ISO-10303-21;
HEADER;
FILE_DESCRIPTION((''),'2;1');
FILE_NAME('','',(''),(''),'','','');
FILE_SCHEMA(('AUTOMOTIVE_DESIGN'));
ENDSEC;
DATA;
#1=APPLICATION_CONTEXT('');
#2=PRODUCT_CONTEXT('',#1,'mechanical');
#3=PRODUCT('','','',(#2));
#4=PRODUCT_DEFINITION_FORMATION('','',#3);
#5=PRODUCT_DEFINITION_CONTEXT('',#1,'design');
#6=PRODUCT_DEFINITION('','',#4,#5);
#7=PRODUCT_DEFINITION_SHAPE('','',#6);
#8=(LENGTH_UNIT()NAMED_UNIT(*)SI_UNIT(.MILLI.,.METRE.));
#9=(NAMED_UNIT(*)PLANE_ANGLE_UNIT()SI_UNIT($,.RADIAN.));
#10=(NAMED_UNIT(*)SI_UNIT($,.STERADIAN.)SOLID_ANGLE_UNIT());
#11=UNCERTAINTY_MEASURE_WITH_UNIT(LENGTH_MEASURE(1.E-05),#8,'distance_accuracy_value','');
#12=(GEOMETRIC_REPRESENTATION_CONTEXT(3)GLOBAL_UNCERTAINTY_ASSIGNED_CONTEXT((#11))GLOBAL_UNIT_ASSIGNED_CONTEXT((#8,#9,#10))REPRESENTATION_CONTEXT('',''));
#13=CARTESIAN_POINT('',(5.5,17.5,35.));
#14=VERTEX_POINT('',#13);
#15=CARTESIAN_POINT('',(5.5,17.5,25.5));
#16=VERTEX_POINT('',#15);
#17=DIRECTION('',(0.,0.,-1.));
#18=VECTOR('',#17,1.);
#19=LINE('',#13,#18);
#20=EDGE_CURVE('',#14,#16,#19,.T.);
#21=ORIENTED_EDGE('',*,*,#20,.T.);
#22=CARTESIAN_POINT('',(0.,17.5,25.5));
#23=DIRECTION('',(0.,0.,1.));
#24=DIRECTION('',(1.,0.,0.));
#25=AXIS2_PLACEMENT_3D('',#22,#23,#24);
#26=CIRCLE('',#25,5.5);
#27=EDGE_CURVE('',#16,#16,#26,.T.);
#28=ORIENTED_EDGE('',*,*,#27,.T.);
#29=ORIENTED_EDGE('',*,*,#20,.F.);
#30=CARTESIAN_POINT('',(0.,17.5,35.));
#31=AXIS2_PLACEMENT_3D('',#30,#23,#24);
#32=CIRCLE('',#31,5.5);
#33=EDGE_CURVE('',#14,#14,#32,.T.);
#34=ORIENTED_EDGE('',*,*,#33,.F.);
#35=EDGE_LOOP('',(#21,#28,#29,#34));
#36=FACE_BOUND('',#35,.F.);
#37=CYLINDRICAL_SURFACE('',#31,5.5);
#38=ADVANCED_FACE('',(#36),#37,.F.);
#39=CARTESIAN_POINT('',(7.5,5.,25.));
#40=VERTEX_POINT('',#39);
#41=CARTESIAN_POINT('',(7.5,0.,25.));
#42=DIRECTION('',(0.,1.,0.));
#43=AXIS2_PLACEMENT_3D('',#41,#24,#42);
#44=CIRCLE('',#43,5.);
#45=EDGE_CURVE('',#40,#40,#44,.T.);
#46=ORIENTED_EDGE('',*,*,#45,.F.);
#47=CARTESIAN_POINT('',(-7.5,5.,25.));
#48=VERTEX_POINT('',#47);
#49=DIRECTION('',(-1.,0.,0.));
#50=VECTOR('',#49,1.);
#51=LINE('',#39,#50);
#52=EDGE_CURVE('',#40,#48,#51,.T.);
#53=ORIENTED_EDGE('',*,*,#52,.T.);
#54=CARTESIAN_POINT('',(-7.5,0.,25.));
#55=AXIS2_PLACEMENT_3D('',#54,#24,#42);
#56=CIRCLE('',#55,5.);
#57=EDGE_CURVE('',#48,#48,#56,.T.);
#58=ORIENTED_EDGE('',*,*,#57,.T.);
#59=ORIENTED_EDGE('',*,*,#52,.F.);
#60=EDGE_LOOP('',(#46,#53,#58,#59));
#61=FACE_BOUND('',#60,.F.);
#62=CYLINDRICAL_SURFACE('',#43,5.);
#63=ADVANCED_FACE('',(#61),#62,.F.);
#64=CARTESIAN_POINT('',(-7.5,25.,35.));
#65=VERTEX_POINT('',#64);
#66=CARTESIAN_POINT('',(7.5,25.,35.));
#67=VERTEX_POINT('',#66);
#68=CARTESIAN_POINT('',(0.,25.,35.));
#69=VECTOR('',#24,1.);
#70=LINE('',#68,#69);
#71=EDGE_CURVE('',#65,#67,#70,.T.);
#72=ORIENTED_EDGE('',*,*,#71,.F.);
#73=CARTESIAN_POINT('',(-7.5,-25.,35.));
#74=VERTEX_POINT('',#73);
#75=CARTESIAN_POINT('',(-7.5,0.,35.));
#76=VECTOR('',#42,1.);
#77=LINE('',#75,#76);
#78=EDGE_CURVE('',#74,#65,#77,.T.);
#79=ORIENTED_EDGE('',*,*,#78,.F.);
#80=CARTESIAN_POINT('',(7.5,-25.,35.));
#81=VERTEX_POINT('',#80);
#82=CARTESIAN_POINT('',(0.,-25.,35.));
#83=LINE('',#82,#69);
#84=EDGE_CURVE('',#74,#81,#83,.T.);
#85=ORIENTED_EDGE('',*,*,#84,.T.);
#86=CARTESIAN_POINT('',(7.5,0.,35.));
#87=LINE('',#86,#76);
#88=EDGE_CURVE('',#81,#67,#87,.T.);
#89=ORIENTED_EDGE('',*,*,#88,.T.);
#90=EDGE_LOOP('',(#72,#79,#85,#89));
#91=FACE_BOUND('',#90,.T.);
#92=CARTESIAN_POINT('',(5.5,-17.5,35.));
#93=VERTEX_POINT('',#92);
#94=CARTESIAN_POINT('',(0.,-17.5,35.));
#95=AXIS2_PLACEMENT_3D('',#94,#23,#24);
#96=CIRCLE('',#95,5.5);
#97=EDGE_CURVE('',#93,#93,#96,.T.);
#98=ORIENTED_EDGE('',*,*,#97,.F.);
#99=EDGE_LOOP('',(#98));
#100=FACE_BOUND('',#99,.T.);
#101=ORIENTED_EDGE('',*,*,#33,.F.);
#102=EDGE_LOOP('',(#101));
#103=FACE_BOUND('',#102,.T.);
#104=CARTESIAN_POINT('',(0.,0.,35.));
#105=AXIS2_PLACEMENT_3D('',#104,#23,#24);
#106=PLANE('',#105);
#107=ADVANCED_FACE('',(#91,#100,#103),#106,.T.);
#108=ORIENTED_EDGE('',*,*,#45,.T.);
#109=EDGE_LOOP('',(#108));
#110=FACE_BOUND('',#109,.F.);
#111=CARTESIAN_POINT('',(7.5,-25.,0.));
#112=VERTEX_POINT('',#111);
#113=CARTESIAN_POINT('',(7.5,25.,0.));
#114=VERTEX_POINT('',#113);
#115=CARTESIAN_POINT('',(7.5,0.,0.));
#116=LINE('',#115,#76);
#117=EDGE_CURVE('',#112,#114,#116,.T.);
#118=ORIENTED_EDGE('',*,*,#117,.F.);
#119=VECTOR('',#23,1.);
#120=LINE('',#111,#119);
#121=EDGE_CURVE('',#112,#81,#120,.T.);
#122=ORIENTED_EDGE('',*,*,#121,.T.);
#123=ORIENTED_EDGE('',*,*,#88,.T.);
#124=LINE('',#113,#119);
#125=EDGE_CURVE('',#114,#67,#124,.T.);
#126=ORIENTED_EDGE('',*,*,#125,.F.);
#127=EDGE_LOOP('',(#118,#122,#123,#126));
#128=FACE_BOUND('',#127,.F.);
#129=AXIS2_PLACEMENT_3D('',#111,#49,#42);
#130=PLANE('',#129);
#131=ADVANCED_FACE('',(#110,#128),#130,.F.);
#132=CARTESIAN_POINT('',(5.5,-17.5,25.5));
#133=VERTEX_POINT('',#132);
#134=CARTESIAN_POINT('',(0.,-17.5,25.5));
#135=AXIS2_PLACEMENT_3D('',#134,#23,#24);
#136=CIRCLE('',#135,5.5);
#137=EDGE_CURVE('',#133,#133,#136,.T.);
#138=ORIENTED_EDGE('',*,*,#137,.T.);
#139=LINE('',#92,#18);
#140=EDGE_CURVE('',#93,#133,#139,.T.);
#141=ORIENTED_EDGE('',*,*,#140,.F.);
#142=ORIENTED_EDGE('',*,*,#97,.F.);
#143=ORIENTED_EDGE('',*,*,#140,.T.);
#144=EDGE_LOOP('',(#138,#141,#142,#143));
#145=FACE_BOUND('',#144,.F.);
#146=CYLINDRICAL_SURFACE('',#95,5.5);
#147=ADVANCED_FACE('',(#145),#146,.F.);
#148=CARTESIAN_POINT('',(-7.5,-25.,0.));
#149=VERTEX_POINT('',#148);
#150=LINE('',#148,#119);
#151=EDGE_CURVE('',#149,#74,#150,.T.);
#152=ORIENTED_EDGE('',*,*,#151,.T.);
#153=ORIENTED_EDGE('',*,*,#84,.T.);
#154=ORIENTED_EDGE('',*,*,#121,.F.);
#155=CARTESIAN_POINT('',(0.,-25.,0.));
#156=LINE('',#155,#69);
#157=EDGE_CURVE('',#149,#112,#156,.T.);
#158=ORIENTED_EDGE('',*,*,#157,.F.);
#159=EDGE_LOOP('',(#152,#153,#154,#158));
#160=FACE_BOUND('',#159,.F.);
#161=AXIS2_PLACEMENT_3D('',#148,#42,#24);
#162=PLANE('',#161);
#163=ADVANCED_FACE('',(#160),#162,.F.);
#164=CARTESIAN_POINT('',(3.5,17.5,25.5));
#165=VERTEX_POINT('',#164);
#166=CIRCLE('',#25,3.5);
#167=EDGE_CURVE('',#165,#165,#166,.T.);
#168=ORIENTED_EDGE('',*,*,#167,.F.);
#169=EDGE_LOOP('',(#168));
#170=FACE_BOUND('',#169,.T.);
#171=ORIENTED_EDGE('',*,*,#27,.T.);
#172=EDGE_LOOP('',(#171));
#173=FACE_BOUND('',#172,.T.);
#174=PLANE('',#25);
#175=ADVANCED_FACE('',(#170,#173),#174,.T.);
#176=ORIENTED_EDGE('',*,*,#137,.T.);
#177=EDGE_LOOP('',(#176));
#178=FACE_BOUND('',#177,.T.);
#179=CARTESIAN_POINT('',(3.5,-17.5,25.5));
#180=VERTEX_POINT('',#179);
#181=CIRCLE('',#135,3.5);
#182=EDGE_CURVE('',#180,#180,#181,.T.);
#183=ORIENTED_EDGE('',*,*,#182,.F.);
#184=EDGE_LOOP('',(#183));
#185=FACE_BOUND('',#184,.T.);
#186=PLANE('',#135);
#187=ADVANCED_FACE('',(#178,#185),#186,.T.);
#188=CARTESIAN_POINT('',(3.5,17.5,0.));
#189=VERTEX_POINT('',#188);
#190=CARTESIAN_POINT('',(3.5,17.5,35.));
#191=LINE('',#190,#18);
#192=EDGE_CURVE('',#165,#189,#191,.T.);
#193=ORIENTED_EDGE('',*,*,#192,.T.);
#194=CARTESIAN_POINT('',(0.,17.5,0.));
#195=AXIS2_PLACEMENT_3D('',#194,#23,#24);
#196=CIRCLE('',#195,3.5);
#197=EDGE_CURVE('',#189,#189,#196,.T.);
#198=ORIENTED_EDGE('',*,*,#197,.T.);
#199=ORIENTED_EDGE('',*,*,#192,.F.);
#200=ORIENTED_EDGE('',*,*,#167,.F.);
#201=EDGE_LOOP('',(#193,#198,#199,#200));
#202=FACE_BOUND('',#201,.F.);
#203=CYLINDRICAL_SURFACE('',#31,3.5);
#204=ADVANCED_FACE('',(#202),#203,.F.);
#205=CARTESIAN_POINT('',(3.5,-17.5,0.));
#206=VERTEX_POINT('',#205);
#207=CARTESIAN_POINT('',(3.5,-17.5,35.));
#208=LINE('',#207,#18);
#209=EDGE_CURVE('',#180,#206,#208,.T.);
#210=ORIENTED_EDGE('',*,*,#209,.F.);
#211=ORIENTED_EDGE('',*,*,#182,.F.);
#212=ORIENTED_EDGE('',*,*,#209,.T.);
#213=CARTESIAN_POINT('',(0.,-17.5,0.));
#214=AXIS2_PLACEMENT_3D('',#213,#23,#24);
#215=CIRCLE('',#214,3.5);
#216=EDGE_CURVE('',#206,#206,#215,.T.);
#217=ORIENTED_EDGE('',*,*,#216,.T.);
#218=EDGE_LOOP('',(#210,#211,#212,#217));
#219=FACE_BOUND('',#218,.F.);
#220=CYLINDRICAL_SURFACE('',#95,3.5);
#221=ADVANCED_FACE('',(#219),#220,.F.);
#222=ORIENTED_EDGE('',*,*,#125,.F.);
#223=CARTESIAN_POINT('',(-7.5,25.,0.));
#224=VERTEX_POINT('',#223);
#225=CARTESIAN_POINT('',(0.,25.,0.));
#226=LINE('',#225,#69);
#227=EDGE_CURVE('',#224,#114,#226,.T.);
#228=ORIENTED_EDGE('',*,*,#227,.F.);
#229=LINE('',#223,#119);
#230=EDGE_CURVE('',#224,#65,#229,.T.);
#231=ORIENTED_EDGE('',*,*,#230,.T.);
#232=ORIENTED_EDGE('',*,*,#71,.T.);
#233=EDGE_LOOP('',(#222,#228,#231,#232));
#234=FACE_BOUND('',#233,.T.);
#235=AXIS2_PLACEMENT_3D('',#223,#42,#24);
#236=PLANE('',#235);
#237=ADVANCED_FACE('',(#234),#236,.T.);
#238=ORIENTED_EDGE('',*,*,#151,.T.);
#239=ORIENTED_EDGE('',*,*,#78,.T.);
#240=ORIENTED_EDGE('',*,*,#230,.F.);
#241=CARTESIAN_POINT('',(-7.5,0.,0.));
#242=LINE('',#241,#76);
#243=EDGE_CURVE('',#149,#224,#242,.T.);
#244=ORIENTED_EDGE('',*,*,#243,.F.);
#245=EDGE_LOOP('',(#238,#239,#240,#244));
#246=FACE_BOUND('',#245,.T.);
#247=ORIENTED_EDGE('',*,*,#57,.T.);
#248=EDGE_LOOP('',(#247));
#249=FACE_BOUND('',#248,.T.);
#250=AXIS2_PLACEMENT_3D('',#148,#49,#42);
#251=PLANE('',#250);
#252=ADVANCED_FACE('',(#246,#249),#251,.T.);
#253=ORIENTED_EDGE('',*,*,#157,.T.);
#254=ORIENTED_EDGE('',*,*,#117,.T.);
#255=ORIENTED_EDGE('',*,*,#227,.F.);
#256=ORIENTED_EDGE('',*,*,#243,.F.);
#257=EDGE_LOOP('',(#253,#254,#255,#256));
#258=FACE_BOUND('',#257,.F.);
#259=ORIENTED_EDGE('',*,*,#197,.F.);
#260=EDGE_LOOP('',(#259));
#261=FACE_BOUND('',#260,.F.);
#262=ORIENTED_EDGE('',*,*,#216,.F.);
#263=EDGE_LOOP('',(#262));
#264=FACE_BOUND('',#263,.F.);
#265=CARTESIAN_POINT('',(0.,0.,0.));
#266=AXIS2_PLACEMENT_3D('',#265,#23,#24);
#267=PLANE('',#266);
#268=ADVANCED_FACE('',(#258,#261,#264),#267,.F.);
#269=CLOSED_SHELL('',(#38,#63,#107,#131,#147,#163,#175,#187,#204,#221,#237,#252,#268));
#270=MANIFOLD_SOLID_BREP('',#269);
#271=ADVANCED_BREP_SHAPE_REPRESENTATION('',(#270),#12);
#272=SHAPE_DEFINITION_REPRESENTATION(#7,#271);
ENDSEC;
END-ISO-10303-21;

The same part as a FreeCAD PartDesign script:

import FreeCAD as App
import Part
import Sketcher
from FreeCAD import Vector
Q = App.Units.Quantity

doc = App.newDocument("Part")
body = doc.addObject("PartDesign::Body", "Body")

# Sketch on XY plane
sketch1 = body.newObject("Sketcher::SketchObject", "Sketch")
sketch1.AttachmentSupport = (doc.getObject("XY_Plane"), [""])
sketch1.MapMode = "FlatFace"
sketch1.addGeometry([
    Part.LineSegment(Vector(-7.5, 25, 0), Vector(-7.5, -25, 0)),
    Part.LineSegment(Vector(-7.5, -25, 0), Vector(7.5, -25, 0)),
    Part.LineSegment(Vector(7.5, -25, 0), Vector(7.5, 25, 0)),
    Part.LineSegment(Vector(7.5, 25, 0), Vector(-7.5, 25, 0)),
], False)
sketch1.addConstraint([
    Sketcher.Constraint("Coincident", 0, 2, 1, 1),
    Sketcher.Constraint("Coincident", 1, 2, 2, 1),
    Sketcher.Constraint("Coincident", 2, 2, 3, 1),
    Sketcher.Constraint("Coincident", 3, 2, 0, 1),
    Sketcher.Constraint("Vertical", 0),
    Sketcher.Constraint("Horizontal", 1),
    Sketcher.Constraint("Vertical", 2),
    Sketcher.Constraint("Horizontal", 3),
    Sketcher.Constraint("Symmetric", 0, 2, 2, 2, -1, 1),
    Sketcher.Constraint("DistanceX", 1, 1, 1, 2, Q("15 mm")),
    Sketcher.Constraint("DistanceY", 0, 2, 0, 1, Q("50 mm")),
])
pad1 = body.newObject("PartDesign::Pad", "Pad")
pad1.Profile = sketch1
pad1.Length = 35

# Sketch on YZ plane
sketch2 = body.newObject("Sketcher::SketchObject", "Sketch001")
sketch2.AttachmentSupport = (doc.getObject("YZ_Plane"), [""])
sketch2.MapMode = "FlatFace"
sketch2.AttachmentOffset = App.Placement(Vector(0, 0, 7.5), App.Rotation())
sketch2.addGeometry(Part.Circle(Vector(0, 25, 0), Vector(0, 0, 1), 5), False)
sketch2.addConstraint([
    Sketcher.Constraint("PointOnObject", 0, 3, -2),
    Sketcher.Constraint("Diameter", 0, Q("10 mm")),
    Sketcher.Constraint("DistanceY", -1, 1, 0, 3, Q("25 mm")),
])
pocket1 = body.newObject("PartDesign::Pocket", "Pocket")
pocket1.Profile = sketch2
pocket1.Type = "ThroughAll"

# Sketch on XY plane
sketch3 = body.newObject("Sketcher::SketchObject", "Sketch002")
sketch3.AttachmentSupport = (doc.getObject("XY_Plane"), [""])
sketch3.MapMode = "FlatFace"
sketch3.AttachmentOffset = App.Placement(Vector(0, 0, 35), App.Rotation())
sketch3.addGeometry([
    Part.Circle(Vector(0, -17.5, 0), Vector(0, 0, 1), 3.5),
    Part.Circle(Vector(0, 17.5, 0), Vector(0, 0, 1), 3.5),
], False)
sketch3.addConstraint([
    Sketcher.Constraint("Equal", 0, 1),
    Sketcher.Constraint("Symmetric", 0, 3, 1, 3, -1, 1),
    Sketcher.Constraint("PointOnObject", 0, 3, -2),
    Sketcher.Constraint("Diameter", 0, Q("7 mm")),
    Sketcher.Constraint("DistanceY", 0, 3, 1, 3, Q("35 mm")),
])
pocket2 = body.newObject("PartDesign::Pocket", "Pocket001")
pocket2.Profile = sketch3
pocket2.Type = "ThroughAll"

# Sketch on XY plane
sketch4 = body.newObject("Sketcher::SketchObject", "Sketch003")
sketch4.AttachmentSupport = (doc.getObject("XY_Plane"), [""])
sketch4.MapMode = "FlatFace"
sketch4.AttachmentOffset = App.Placement(Vector(0, 0, 35), App.Rotation())
sketch4.addGeometry([
    Part.Circle(Vector(0, -17.5, 0), Vector(0, 0, 1), 5.5),
    Part.Circle(Vector(0, 17.5, 0), Vector(0, 0, 1), 5.5),
], False)
sketch4.addConstraint([
    Sketcher.Constraint("Equal", 0, 1),
    Sketcher.Constraint("Symmetric", 0, 3, 1, 3, -1, 1),
    Sketcher.Constraint("PointOnObject", 0, 3, -2),
    Sketcher.Constraint("Diameter", 0, Q("11 mm")),
    Sketcher.Constraint("DistanceY", 0, 3, 1, 3, Q("35 mm")),
])
pocket3 = body.newObject("PartDesign::Pocket", "Pocket002")
pocket3.Profile = sketch4
pocket3.Length = 9.5

doc.recompute()
